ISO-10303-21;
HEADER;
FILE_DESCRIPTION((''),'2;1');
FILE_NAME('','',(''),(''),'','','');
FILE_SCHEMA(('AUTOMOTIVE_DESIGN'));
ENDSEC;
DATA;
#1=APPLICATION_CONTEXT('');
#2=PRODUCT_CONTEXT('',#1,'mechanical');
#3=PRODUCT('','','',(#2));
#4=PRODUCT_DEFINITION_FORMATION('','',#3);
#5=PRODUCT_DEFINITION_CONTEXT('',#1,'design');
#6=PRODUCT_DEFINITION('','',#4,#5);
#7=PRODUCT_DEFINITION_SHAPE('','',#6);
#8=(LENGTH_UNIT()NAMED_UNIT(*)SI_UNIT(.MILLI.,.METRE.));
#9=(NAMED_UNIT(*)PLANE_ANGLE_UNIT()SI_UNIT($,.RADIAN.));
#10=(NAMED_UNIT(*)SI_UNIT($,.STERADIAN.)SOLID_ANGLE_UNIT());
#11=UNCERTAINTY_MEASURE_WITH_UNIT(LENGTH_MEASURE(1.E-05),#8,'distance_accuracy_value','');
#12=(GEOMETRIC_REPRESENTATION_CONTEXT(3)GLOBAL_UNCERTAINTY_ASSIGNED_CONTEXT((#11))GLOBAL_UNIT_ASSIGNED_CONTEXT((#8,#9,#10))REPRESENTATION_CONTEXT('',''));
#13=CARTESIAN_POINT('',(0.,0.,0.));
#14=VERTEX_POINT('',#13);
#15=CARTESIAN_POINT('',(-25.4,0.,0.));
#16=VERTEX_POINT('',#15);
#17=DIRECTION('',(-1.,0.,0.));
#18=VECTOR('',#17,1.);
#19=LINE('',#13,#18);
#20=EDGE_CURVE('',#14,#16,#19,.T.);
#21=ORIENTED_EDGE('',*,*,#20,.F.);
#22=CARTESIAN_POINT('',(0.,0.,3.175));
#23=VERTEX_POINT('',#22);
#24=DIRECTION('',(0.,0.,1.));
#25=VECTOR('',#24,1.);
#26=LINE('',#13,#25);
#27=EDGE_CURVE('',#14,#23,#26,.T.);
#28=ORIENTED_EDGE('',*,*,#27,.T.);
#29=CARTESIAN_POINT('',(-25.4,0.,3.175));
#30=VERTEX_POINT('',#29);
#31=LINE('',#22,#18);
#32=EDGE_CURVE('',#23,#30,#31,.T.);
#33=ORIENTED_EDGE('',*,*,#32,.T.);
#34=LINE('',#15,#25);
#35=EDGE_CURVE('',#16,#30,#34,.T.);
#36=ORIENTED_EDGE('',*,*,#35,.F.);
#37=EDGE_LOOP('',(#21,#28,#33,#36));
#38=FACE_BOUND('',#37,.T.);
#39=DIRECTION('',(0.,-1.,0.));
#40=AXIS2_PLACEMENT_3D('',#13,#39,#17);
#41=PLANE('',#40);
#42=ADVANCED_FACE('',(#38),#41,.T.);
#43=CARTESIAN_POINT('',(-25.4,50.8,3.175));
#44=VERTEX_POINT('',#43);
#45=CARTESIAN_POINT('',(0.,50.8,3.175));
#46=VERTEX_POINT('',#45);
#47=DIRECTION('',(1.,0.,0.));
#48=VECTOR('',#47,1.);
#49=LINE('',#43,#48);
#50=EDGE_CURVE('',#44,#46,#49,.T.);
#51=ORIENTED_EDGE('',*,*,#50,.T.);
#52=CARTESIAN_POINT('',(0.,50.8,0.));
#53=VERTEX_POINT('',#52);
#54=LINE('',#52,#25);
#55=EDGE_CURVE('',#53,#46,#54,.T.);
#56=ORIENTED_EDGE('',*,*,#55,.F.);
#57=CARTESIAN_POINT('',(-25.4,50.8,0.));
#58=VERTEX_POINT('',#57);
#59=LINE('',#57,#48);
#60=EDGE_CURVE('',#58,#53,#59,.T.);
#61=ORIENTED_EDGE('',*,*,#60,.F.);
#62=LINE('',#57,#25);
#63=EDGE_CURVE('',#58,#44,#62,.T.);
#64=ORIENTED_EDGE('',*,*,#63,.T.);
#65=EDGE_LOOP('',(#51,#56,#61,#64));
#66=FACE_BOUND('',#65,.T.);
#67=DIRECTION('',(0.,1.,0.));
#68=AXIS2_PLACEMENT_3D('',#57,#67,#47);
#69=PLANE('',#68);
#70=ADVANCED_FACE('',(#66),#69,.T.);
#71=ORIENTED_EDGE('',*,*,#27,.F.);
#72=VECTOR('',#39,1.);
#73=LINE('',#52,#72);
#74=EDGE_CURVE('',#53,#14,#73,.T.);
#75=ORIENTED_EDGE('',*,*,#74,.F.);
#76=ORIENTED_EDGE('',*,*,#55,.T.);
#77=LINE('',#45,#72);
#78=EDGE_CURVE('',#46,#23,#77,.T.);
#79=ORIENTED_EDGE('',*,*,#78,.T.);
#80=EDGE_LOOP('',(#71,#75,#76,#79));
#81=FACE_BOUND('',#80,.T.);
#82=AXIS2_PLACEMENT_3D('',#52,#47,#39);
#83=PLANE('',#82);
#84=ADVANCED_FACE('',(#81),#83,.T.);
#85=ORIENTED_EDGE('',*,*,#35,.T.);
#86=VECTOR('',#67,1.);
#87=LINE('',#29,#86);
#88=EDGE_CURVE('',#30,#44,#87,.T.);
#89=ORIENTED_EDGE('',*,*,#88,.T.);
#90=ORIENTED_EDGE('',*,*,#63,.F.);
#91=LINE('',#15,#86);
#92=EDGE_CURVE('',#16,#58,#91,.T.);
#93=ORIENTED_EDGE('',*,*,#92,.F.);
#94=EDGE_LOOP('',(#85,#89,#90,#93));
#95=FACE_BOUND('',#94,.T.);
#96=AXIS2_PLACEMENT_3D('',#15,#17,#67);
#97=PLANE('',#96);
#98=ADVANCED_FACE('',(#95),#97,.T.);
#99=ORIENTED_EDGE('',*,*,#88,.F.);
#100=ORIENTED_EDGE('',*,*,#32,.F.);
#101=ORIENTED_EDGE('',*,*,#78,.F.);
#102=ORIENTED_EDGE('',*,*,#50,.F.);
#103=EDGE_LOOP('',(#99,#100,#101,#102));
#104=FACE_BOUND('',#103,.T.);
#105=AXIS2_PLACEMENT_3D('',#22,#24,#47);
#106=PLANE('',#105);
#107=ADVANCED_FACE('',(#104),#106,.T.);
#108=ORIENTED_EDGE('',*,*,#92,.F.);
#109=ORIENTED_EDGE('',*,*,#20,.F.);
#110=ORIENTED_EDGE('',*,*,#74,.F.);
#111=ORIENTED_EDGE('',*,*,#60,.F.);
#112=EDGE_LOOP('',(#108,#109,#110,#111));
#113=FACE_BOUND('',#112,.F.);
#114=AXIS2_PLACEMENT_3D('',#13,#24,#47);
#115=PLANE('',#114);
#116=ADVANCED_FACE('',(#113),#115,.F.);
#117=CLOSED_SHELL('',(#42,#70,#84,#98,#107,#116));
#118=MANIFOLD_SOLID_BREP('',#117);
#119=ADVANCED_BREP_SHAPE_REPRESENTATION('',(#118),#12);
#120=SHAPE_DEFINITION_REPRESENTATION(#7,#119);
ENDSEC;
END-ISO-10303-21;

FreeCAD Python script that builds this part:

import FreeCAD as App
import Part
import Sketcher
from FreeCAD import Vector
Q = App.Units.Quantity


def add_polygon(sketch, points):
    """Adds a closed chain of lines whose ends are joined by coincident constraints."""
    first, n = sketch.GeometryCount, len(points)
    for a, b in zip(points, points[1:] + points[:1]):
        sketch.addGeometry(Part.LineSegment(App.Vector(*a, 0), App.Vector(*b, 0)), False)
    for i in range(n):
        sketch.addConstraint(Sketcher.Constraint("Coincident", first + i, 2, first + (i + 1) % n, 1))

doc = App.newDocument("Part")
body = doc.addObject("PartDesign::Body", "Body")

sketch1 = doc.addObject("Sketcher::SketchObject", "Sketch")
body.addObject(sketch1)
sketch1.AttachmentSupport = (doc.XY_Plane, [""])
sketch1.MapMode = "FlatFace"
add_polygon(sketch1, [(-25, 0), (0, 0), (0, 51), (-25, 51)])
sketch1.addConstraint(Sketcher.Constraint("Horizontal", 0))
sketch1.addConstraint(Sketcher.Constraint("Vertical", 1))
sketch1.addConstraint(Sketcher.Constraint("Horizontal", 2))
sketch1.addConstraint(Sketcher.Constraint("Vertical", 3))
sketch1.addConstraint(Sketcher.Constraint("Coincident", 0, 2, -1, 1))
sketch1.addConstraint(Sketcher.Constraint("DistanceX", 0, 1, 0, 2, Q("1 in")))
sketch1.addConstraint(Sketcher.Constraint("DistanceY", 1, 1, 1, 2, Q("2 in")))
pad1 = doc.addObject("PartDesign::Pad", "Pad")
body.addObject(pad1)
pad1.Profile = sketch1
pad1.Length = Q("0.125 in")

doc.recompute()
